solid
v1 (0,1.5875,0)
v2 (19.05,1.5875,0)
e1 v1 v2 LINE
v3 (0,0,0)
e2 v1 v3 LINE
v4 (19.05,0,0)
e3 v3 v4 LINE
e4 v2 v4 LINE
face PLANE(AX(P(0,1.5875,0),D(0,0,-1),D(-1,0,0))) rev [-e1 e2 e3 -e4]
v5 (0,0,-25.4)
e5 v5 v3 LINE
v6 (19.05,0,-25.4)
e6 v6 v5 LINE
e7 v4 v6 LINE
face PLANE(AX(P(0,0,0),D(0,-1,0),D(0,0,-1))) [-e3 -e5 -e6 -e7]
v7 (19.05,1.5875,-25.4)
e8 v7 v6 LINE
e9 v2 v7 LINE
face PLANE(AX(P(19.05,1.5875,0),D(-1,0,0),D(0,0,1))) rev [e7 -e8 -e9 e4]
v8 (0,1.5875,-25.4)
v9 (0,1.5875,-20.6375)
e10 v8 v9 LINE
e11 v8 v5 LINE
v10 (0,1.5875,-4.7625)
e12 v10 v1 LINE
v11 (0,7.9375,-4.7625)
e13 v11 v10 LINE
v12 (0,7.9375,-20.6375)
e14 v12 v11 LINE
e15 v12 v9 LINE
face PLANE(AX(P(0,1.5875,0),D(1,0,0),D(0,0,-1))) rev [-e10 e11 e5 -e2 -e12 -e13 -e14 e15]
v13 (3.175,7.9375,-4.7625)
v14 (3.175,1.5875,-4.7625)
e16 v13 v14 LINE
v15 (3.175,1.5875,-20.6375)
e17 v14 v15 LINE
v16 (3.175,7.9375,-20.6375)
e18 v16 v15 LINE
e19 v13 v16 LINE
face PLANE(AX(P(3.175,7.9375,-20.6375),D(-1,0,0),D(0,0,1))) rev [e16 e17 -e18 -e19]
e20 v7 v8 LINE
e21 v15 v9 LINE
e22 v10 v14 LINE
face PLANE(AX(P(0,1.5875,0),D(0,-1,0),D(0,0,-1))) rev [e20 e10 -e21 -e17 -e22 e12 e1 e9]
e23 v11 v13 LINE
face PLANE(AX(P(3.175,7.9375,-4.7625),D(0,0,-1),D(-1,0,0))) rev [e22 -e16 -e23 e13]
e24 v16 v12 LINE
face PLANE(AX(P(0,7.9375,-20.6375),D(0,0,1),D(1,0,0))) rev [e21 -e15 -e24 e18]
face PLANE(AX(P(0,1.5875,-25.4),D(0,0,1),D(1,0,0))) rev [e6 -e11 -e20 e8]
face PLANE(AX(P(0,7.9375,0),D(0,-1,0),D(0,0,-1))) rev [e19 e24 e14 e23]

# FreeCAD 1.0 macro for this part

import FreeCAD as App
import Part
import Sketcher
Q = App.Units.Quantity


def add_polygon(sketch, points):
    """Adds a closed chain of lines whose ends are joined by coincident constraints."""
    first, n = sketch.GeometryCount, len(points)
    for a, b in zip(points, points[1:] + points[:1]):
        sketch.addGeometry(Part.LineSegment(App.Vector(*a, 0), App.Vector(*b, 0)), False)
    for i in range(n):
        sketch.addConstraint(Sketcher.Constraint("Coincident", first + i, 2, first + (i + 1) % n, 1))

doc = App.newDocument("Part")
body = doc.addObject("PartDesign::Body", "Body")

# Sketch on XZ plane
sketch1 = body.newObject("Sketcher::SketchObject", "Sketch")
sketch1.AttachmentSupport = (doc.getObject("XZ_Plane"), [""])
sketch1.MapMode = "FlatFace"
add_polygon(sketch1, [(0, -25.4), (0, 0), (19.05, 0), (19.05, -25.4)])  # lines 0-3
sketch1.addConstraint([
    Sketcher.Constraint("Vertical", 0),
    Sketcher.Constraint("Horizontal", 1),
    Sketcher.Constraint("Vertical", 2),
    Sketcher.Constraint("Horizontal", 3),
    Sketcher.Constraint("Coincident", 0, 2, -1, 1),
    Sketcher.Constraint("DistanceY", 0, 1, 0, 2, Q("1 in")),
    Sketcher.Constraint("DistanceX", 1, 1, 1, 2, Q("0.75 in")),
])
pad1 = body.newObject("PartDesign::Pad", "Pad")
pad1.Profile = sketch1
pad1.Length = Q("0.0625 in")
pad1.Reversed = True

# Sketch on XZ plane
sketch2 = body.newObject("Sketcher::SketchObject", "Sketch001")
sketch2.AttachmentSupport = (doc.getObject("XZ_Plane"), [""])
sketch2.MapMode = "FlatFace"
sketch2.AttachmentOffset = App.Placement(App.Vector(0, 0, -0.0625 * 25.4), App.Rotation())
add_polygon(sketch2, [(0, -20.6375), (0, -4.7625), (3.175, -4.7625), (3.175, -20.6375)])  # lines 0-3
sketch2.addConstraint([
    Sketcher.Constraint("Vertical", 0),
    Sketcher.Constraint("Horizontal", 1),
    Sketcher.Constraint("Vertical", 2),
    Sketcher.Constraint("Horizontal", 3),
    Sketcher.Constraint("PointOnObject", 0, 2, -2),
    Sketcher.Constraint("DistanceX", 1, 1, 1, 2, Q("0.125 in")),
    Sketcher.Constraint("DistanceY", 0, 1, 0, 2, Q("0.625 in")),
    Sketcher.Constraint("DistanceY", 0, 2, -1, 1, Q("0.1875 in")),
])
pad2 = body.newObject("PartDesign::Pad", "Pad001")
pad2.Profile = sketch2
pad2.Length = Q("0.25 in")
pad2.Reversed = True

doc.recompute()
